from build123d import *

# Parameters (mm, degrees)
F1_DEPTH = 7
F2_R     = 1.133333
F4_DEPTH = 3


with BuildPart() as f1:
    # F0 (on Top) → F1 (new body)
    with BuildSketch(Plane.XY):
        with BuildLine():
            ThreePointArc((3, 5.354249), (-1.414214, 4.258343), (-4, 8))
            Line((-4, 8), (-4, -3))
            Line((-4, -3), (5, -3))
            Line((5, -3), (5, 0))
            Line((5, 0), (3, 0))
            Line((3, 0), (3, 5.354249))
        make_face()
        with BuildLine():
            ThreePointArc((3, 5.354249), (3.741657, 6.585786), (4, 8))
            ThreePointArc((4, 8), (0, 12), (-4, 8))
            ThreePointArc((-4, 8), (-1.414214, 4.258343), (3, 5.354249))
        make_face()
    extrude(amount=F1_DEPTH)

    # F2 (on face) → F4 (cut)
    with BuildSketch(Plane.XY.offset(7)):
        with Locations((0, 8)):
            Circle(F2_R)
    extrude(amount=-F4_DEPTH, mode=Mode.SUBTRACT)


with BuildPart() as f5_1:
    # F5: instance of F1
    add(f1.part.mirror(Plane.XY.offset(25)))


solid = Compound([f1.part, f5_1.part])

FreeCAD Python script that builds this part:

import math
import FreeCAD as App
import Part
import Sketcher
from FreeCAD import Vector

doc = App.newDocument("Part")
body = doc.addObject("PartDesign::Body", "Body")

# Sketch on XY plane
sketch1 = doc.addObject("Sketcher::SketchObject", "Sketch")
body.addObject(sketch1)
sketch1.AttachmentSupport = (doc.XY_Plane, [""])
sketch1.MapMode = "FlatFace"
sketch1.addGeometry(Part.LineSegment(Vector(-4, 8, 0), Vector(-4, -3, 0)), False)
sketch1.addGeometry(Part.LineSegment(Vector(-4, -3, 0), Vector(5, -3, 0)), False)
sketch1.addGeometry(Part.LineSegment(Vector(5, -3, 0), Vector(5, 0, 0)), False)
sketch1.addGeometry(Part.LineSegment(Vector(5, 0, 0), Vector(3, 0, 0)), False)
sketch1.addGeometry(Part.LineSegment(Vector(3, 0, 0), Vector(3, 5.4, 0)), False)
sketch1.addGeometry(Part.ArcOfCircle(Part.Circle(Vector(0, 8, 0), Vector(0, 0, 1), 4), math.radians(-41), math.radians(0)), False)
sketch1.addGeometry(Part.ArcOfCircle(Part.Circle(Vector(0, 8, 0), Vector(0, 0, 1), 4), math.radians(0), math.radians(180)), False)
sketch1.addConstraint(Sketcher.Constraint("Coincident", 0, 2, 1, 1))
sketch1.addConstraint(Sketcher.Constraint("Coincident", 1, 2, 2, 1))
sketch1.addConstraint(Sketcher.Constraint("Coincident", 2, 2, 3, 1))
sketch1.addConstraint(Sketcher.Constraint("Coincident", 3, 2, 4, 1))
sketch1.addConstraint(Sketcher.Constraint("Coincident", 4, 2, 5, 1))
sketch1.addConstraint(Sketcher.Constraint("Tangent", 5, 2, 6, 1))
sketch1.addConstraint(Sketcher.Constraint("Tangent", 6, 2, 0, 1))
sketch1.addConstraint(Sketcher.Constraint("Vertical", 0))
sketch1.addConstraint(Sketcher.Constraint("Horizontal", 1))
sketch1.addConstraint(Sketcher.Constraint("Vertical", 2))
sketch1.addConstraint(Sketcher.Constraint("Horizontal", 3))
sketch1.addConstraint(Sketcher.Constraint("Vertical", 4))
sketch1.addConstraint(Sketcher.Constraint("Equal", 5, 6))
sketch1.addConstraint(Sketcher.Constraint("Symmetric", 5, 2, 6, 2, -2))
sketch1.addConstraint(Sketcher.Constraint("PointOnObject", 2, 2, -1))
sketch1.addConstraint(Sketcher.Constraint("Radius", 5, 4.000001))
sketch1.addConstraint(Sketcher.Constraint("DistanceX", 1, 1, 1, 2, 9.0))
sketch1.addConstraint(Sketcher.Constraint("DistanceX", 3, 2, 3, 1, 2.0))
sketch1.addConstraint(Sketcher.Constraint("DistanceY", 0, 2, 0, 1, 11.0))
sketch1.addConstraint(Sketcher.Constraint("DistanceY", 2, 1, 2, 2, 3.0))
pad1 = doc.addObject("PartDesign::Pad", "Pad")
body.addObject(pad1)
pad1.Profile = sketch1
pad1.Length = 7

# Sketch on XY plane
sketch2 = doc.addObject("Sketcher::SketchObject", "Sketch001")
body.addObject(sketch2)
sketch2.AttachmentSupport = (doc.XY_Plane, [""])
sketch2.MapMode = "FlatFace"
sketch2.AttachmentOffset = App.Placement(Vector(0, 0, 7), App.Rotation())
sketch2.addGeometry(Part.Circle(Vector(0, 8, 0), Vector(0, 0, 1), 1.1), False)
sketch2.addConstraint(Sketcher.Constraint("PointOnObject", 0, 3, -2))
sketch2.addConstraint(Sketcher.Constraint("DistanceY", -1, 1, 0, 3, 8.0))
sketch2.addConstraint(Sketcher.Constraint("Diameter", 0, 2.266666))
pocket1 = doc.addObject("PartDesign::Pocket", "Pocket")
body.addObject(pocket1)
pocket1.Profile = sketch2
pocket1.Length = 3
body2 = doc.addObject("PartDesign::Body", "Body001")
doc.recompute()

mirroring = doc.addObject("Part::Mirroring", "Mirroring")
mirroring.Source = body
mirroring.Base = Vector(0, 0, 25)
mirroring.Normal = Vector(0, 0, 1)
body2.BaseFeature = mirroring
doc.recompute()
mirroring.Visibility = False

doc.recompute()
